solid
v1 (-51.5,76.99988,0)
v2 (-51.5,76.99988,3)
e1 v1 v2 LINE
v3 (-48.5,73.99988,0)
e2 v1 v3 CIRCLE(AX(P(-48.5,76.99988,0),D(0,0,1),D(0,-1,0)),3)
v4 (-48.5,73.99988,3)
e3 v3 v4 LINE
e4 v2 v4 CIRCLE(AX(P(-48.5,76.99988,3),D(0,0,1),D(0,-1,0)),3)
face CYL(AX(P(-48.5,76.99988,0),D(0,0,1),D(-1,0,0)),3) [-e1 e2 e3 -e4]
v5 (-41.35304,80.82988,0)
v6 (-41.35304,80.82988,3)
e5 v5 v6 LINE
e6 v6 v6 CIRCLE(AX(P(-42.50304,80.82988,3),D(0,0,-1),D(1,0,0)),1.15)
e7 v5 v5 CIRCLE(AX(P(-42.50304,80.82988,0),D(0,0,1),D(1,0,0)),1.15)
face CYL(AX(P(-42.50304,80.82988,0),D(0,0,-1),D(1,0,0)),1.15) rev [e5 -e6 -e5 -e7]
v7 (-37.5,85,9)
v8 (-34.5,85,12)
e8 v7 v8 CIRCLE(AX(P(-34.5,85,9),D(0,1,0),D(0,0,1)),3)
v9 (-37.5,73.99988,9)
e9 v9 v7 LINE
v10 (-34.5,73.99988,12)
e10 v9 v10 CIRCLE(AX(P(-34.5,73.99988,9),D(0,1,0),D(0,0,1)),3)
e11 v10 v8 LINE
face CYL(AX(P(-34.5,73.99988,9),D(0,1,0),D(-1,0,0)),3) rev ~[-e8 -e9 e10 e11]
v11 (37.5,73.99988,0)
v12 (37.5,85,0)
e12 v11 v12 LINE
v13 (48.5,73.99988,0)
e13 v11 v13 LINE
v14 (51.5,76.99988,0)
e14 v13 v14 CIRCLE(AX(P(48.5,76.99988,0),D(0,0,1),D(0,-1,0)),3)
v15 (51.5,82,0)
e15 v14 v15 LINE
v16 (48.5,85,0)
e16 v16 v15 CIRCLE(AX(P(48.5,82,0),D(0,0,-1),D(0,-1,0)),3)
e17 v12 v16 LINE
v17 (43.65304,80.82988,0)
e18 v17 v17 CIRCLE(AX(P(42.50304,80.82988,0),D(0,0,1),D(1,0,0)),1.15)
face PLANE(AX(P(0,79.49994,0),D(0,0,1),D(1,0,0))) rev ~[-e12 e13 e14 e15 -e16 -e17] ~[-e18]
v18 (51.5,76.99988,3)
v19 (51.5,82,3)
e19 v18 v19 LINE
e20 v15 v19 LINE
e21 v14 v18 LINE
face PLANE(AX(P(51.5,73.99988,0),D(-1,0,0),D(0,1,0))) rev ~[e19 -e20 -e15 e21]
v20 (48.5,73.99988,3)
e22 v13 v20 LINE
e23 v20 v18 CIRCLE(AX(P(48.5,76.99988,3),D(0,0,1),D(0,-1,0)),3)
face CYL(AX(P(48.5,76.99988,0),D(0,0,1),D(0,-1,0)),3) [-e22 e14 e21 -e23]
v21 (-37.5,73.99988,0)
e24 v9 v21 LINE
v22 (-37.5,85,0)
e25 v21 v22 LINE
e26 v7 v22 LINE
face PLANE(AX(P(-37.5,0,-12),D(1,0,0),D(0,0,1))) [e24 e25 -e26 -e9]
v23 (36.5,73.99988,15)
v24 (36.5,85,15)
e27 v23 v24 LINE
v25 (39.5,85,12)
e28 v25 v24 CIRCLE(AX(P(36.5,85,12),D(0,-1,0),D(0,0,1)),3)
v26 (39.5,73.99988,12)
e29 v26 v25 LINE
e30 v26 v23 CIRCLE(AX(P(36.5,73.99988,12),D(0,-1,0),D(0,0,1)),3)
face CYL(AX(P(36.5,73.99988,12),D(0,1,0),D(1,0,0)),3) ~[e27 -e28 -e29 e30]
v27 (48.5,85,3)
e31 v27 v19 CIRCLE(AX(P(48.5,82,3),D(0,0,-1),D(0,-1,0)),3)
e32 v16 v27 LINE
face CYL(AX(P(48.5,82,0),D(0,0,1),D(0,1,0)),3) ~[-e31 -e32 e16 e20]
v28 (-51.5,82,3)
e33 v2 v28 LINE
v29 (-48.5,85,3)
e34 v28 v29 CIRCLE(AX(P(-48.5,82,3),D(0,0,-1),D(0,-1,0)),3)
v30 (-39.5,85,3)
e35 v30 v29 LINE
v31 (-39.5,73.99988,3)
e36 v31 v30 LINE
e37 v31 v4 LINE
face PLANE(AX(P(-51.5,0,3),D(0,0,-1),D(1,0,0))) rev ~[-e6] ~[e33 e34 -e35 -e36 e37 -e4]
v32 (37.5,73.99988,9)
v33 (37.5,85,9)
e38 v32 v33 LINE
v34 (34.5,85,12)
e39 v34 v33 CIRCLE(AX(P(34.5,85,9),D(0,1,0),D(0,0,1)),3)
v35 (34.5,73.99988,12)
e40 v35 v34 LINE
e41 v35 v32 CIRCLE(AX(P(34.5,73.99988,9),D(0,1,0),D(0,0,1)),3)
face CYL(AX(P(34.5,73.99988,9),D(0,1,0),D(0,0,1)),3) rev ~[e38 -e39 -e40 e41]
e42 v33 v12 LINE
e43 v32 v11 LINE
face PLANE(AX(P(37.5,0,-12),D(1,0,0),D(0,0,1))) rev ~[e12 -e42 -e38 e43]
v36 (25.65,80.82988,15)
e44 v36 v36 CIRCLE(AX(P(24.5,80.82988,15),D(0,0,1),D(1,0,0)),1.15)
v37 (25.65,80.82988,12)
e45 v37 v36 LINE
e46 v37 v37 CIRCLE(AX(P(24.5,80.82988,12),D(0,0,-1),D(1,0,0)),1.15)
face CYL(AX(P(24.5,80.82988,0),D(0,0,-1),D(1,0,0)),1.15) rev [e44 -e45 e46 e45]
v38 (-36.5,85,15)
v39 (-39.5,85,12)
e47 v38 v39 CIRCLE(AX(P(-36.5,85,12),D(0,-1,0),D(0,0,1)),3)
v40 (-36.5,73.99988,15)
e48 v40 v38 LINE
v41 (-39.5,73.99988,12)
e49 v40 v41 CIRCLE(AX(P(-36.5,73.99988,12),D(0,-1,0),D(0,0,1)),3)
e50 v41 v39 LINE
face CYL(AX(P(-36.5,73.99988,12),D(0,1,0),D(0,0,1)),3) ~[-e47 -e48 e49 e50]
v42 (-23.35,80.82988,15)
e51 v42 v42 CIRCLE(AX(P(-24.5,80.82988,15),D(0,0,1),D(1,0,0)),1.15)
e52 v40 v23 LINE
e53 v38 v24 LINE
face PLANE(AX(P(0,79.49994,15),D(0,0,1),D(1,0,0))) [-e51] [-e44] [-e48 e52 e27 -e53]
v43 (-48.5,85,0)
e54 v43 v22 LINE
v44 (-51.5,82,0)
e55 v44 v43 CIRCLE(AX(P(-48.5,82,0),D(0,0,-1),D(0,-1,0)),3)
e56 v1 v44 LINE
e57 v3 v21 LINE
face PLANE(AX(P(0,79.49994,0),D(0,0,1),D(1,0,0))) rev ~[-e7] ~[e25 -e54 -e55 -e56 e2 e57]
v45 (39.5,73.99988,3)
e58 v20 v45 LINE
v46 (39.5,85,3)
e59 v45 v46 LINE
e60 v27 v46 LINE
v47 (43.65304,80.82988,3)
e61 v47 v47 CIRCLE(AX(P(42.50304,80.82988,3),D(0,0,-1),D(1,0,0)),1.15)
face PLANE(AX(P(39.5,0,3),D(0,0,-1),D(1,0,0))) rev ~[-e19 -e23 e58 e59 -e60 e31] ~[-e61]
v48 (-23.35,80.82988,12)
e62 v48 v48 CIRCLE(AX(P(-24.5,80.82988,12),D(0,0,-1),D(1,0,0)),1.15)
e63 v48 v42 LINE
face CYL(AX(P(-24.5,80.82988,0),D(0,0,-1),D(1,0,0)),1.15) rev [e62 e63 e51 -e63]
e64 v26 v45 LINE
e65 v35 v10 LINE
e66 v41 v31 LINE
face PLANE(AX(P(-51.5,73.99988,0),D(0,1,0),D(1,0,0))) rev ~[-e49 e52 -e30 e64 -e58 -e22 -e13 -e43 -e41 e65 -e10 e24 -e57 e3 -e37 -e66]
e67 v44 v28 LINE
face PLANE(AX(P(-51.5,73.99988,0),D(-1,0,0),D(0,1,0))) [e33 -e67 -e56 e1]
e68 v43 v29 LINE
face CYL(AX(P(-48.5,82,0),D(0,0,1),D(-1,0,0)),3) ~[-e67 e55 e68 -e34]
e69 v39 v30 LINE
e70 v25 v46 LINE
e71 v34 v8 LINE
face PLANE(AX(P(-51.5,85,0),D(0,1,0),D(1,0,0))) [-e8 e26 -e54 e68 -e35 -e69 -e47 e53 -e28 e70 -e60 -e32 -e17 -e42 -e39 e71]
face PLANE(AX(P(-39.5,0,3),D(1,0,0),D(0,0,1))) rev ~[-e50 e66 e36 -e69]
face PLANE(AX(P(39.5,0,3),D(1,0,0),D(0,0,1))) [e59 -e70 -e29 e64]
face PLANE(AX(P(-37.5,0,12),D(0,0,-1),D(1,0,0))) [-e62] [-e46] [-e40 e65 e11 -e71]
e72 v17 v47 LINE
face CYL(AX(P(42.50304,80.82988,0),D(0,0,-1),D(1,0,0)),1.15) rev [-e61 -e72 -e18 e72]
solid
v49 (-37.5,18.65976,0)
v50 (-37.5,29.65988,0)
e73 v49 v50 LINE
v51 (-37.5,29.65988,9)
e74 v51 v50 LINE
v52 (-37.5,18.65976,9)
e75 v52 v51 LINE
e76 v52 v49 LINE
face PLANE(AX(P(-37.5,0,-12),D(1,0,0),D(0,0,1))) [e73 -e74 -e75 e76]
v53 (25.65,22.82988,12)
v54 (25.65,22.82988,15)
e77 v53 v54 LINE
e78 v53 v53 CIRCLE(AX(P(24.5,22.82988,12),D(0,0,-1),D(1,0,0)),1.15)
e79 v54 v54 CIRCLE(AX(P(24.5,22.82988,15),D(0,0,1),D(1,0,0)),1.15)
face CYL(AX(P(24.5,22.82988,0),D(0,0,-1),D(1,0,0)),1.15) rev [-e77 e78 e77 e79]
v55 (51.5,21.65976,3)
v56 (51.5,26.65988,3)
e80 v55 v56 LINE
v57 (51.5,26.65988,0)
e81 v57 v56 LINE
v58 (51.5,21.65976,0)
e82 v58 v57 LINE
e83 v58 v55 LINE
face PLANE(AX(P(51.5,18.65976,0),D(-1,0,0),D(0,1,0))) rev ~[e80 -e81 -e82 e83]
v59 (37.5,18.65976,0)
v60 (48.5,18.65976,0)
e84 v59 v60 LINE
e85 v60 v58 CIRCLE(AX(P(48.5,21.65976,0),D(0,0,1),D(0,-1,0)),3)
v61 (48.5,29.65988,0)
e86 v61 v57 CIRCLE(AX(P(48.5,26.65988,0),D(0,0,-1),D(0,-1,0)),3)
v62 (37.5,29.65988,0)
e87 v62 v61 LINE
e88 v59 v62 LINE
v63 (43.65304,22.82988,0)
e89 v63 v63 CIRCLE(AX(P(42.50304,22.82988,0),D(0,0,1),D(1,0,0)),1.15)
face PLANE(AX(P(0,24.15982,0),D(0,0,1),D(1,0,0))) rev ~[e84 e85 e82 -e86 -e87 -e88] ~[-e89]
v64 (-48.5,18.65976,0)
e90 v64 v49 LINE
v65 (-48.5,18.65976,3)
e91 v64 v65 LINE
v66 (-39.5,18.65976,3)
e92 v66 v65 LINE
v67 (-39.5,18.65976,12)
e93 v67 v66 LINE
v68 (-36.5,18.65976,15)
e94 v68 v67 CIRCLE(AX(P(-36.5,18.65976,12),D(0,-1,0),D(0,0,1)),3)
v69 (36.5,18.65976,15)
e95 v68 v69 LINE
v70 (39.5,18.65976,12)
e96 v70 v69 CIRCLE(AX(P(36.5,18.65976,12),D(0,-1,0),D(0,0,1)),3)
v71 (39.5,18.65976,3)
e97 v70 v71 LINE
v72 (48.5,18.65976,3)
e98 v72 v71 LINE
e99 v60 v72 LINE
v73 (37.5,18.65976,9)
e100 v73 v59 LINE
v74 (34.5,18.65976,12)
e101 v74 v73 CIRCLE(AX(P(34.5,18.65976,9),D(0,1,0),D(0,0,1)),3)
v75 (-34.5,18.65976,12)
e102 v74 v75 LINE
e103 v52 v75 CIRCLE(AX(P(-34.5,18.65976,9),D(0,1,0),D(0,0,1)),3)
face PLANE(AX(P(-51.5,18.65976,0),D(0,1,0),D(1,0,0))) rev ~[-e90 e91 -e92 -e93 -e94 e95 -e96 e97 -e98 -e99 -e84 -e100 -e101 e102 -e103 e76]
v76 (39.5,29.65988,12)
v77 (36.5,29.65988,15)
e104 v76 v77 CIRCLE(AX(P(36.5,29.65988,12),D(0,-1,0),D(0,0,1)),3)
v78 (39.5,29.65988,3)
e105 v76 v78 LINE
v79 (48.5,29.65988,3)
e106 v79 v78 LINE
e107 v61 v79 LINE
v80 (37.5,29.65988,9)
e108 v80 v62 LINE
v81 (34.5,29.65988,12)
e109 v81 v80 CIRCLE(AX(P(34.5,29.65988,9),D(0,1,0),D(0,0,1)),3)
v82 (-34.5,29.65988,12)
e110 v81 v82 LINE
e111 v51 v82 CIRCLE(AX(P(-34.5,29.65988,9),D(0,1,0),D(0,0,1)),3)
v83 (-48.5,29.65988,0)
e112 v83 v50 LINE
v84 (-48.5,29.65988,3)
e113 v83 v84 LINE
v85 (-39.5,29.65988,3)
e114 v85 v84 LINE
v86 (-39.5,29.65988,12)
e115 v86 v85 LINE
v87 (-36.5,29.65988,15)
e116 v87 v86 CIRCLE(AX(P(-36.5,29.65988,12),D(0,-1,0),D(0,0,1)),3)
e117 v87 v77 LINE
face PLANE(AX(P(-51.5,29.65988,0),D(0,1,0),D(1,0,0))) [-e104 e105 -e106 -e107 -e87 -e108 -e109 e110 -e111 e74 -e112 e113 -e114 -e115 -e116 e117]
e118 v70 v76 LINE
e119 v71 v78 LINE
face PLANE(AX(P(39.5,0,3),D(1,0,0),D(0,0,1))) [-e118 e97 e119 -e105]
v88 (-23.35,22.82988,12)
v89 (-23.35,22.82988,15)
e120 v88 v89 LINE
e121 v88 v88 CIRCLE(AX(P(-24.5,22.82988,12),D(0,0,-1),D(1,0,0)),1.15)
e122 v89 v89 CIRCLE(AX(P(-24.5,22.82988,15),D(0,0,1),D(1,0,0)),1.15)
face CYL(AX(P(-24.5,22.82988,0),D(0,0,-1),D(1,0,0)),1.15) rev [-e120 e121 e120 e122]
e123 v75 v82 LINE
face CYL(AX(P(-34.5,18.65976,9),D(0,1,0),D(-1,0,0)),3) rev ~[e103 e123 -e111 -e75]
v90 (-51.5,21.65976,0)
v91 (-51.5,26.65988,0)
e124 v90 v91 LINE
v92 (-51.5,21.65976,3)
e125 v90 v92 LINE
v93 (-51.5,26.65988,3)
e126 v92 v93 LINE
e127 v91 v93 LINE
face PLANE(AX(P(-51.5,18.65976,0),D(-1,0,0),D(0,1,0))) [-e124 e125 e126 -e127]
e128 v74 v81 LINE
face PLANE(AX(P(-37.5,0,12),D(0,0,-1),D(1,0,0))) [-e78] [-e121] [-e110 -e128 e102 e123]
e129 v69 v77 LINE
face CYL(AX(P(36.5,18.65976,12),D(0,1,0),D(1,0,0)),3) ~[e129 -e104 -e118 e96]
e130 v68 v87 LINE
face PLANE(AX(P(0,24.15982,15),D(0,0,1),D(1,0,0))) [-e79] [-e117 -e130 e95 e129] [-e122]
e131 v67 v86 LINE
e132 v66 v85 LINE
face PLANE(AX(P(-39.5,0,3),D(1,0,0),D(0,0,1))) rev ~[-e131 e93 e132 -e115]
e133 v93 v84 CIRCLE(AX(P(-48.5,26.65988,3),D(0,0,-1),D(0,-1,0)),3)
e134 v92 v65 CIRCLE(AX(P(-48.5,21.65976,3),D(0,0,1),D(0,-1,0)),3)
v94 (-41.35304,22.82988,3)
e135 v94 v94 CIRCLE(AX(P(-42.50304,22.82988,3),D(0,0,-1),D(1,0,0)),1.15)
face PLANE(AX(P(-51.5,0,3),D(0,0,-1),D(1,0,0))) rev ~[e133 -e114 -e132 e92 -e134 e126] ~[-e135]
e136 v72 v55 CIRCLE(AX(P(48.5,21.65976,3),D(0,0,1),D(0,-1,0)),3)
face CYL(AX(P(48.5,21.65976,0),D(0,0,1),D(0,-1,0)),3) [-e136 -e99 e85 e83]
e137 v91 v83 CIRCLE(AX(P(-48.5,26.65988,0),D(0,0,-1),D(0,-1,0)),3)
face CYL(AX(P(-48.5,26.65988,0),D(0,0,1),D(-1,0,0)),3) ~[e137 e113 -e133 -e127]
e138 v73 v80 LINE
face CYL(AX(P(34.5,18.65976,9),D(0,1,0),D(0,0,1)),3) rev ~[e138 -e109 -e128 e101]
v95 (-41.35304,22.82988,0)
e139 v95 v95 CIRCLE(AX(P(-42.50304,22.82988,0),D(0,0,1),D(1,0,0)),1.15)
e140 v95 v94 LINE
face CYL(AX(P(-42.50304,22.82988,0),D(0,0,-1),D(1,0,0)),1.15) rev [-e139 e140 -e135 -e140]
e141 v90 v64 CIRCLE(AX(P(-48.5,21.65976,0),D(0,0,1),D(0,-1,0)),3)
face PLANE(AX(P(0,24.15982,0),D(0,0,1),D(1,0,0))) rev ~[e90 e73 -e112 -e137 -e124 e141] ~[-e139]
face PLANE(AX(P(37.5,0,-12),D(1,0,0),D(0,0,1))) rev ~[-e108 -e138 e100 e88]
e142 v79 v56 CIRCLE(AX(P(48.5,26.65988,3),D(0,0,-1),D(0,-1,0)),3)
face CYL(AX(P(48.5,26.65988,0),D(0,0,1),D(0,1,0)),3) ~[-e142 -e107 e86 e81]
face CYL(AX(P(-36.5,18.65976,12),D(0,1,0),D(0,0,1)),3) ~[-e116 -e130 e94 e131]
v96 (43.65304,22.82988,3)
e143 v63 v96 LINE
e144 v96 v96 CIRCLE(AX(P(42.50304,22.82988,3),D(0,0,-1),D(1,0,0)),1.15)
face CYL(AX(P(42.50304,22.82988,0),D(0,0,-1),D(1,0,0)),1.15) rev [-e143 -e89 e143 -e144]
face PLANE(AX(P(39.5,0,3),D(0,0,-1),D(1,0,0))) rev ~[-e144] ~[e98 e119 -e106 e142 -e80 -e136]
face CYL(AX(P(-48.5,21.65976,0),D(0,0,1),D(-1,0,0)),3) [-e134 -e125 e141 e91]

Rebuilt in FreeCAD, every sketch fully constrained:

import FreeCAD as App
import Part
import Sketcher
from FreeCAD import Vector


def edges_at(feature, points):
    """Names of the edges that pass closest to the given points."""
    edges = feature.Shape.Edges
    near = lambda p: min(range(len(edges)), key=lambda i: edges[i].distToShape(Part.Vertex(*p))[0])
    return sorted({f"Edge{near(p) + 1}" for p in points})

doc = App.newDocument("Part")
params = doc.addObject("Spreadsheet::Sheet", "Params")
for row, (alias, value) in enumerate([
    ("sketch1_diameter", "2.3 mm"),
    ("sketch1_width", "103 mm"),
    ("pad1_length", "15 mm"),
    ("sketch2_diameter", "2.3 mm"),
    ("sketch2_width", "103 mm"),
    ("pad2_length", "15 mm"),
    ("sketch3_width", "75 mm"),
    ("sketch3_width2", "12 mm"),
    ("sketch3_height", "24 mm"),
    ("pad3_length", "85.001 mm"),
    ("fillet_radius", "3 mm"),
    ("fillet2_radius", "3 mm"),
], start=1):
    params.set(f"A{row}", alias)
    params.set(f"B{row}", "=" + value)
    params.setAlias(f"B{row}", alias)

body = doc.addObject("PartDesign::Body", "Body")

# Sketch on XY plane
sketch1 = body.newObject("Sketcher::SketchObject", "Sketch")
sketch1.AttachmentSupport = (doc.getObject("XY_Plane"), [""])
sketch1.MapMode = "FlatFace"
sketch1.addGeometry(Part.LineSegment(Vector(-51.5, 85, 0), Vector(-51.5, 73.99988, 0)), False)
sketch1.addGeometry(Part.LineSegment(Vector(-51.5, 73.99988, 0), Vector(51.5, 73.99988, 0)), False)
sketch1.addGeometry(Part.LineSegment(Vector(51.5, 73.99988, 0), Vector(51.5, 85, 0)), False)
sketch1.addGeometry(Part.LineSegment(Vector(51.5, 85, 0), Vector(-51.5, 85, 0)), False)
sketch1.addGeometry(Part.Circle(Vector(-42.50304, 80.82988, 0), Vector(0, 0, 1), 1.15), False)
sketch1.addGeometry(Part.Circle(Vector(-24.5, 80.82988, 0), Vector(0, 0, 1), 1.15), False)
sketch1.addGeometry(Part.Circle(Vector(24.5, 80.82988, 0), Vector(0, 0, 1), 1.15), False)
sketch1.addGeometry(Part.Circle(Vector(42.50304, 80.82988, 0), Vector(0, 0, 1), 1.15), False)
sketch1.addConstraint(Sketcher.Constraint("Coincident", 0, 2, 1, 1))
sketch1.addConstraint(Sketcher.Constraint("Coincident", 1, 2, 2, 1))
sketch1.addConstraint(Sketcher.Constraint("Coincident", 2, 2, 3, 1))
sketch1.addConstraint(Sketcher.Constraint("Coincident", 3, 2, 0, 1))
sketch1.addConstraint(Sketcher.Constraint("Vertical", 0))
sketch1.addConstraint(Sketcher.Constraint("Horizontal", 1))
sketch1.addConstraint(Sketcher.Constraint("Vertical", 2))
sketch1.addConstraint(Sketcher.Constraint("Horizontal", 3))
sketch1.addConstraint(Sketcher.Constraint("Equal", 4, 5))
sketch1.addConstraint(Sketcher.Constraint("Equal", 5, 6))
sketch1.addConstraint(Sketcher.Constraint("Equal", 6, 7))
sketch1.addConstraint(Sketcher.Constraint("Symmetric", 5, 3, 6, 3, -2))
sketch1.addConstraint(Sketcher.Constraint("Symmetric", 4, 3, 7, 3, -2))
sketch1.addConstraint(Sketcher.Constraint("Horizontal", 4, 3, 5, 3))
sketch1.addConstraint(Sketcher.Constraint("Diameter", 4, 2.3))
sketch1.addConstraint(Sketcher.Constraint("DistanceX", 1, 1, 1, 2, 103.0))
sketch1.addConstraint(Sketcher.Constraint("DistanceY", -1, 1, 2, 2, 85.0))
sketch1.addConstraint(Sketcher.Constraint("DistanceX", 5, 3, 6, 3, 49.0))
sketch1.addConstraint(Sketcher.Constraint("DistanceX", 0, 2, 5, 3, 27.0))
sketch1.addConstraint(Sketcher.Constraint("DistanceY", 0, 2, 4, 3, 6.83))
sketch1.addConstraint(Sketcher.Constraint("DistanceY", 0, 2, 0, 1, 11.00012))
sketch1.addConstraint(Sketcher.Constraint("DistanceX", 4, 3, -1, 1, 42.50304))
sketch1.setExpression("Constraints[14]", "Params.sketch1_diameter")
sketch1.setExpression("Constraints[15]", "Params.sketch1_width")
pad1 = body.newObject("PartDesign::Pad", "Pad")
pad1.Profile = sketch1
pad1.setExpression("Length", "Params.pad1_length")
body2 = doc.addObject("PartDesign::Body", "Body001")

# Sketch on XY plane
sketch2 = body2.newObject("Sketcher::SketchObject", "Sketch001")
sketch2.AttachmentSupport = (doc.getObject("XY_Plane001"), [""])
sketch2.MapMode = "FlatFace"
sketch2.addGeometry(Part.LineSegment(Vector(-51.5, 29.65988, 0), Vector(-51.5, 18.65976, 0)), False)
sketch2.addGeometry(Part.LineSegment(Vector(-51.5, 18.65976, 0), Vector(51.5, 18.65976, 0)), False)
sketch2.addGeometry(Part.LineSegment(Vector(51.5, 18.65976, 0), Vector(51.5, 29.65988, 0)), False)
sketch2.addGeometry(Part.LineSegment(Vector(51.5, 29.65988, 0), Vector(-51.5, 29.65988, 0)), False)
sketch2.addGeometry(Part.Circle(Vector(-42.50304, 22.82988, 0), Vector(0, 0, 1), 1.15), False)
sketch2.addGeometry(Part.Circle(Vector(-24.5, 22.82988, 0), Vector(0, 0, 1), 1.15), False)
sketch2.addGeometry(Part.Circle(Vector(24.5, 22.82988, 0), Vector(0, 0, 1), 1.15), False)
sketch2.addGeometry(Part.Circle(Vector(42.50304, 22.82988, 0), Vector(0, 0, 1), 1.15), False)
sketch2.addConstraint(Sketcher.Constraint("Coincident", 0, 2, 1, 1))
sketch2.addConstraint(Sketcher.Constraint("Coincident", 1, 2, 2, 1))
sketch2.addConstraint(Sketcher.Constraint("Coincident", 2, 2, 3, 1))
sketch2.addConstraint(Sketcher.Constraint("Coincident", 3, 2, 0, 1))
sketch2.addConstraint(Sketcher.Constraint("Vertical", 0))
sketch2.addConstraint(Sketcher.Constraint("Horizontal", 1))
sketch2.addConstraint(Sketcher.Constraint("Vertical", 2))
sketch2.addConstraint(Sketcher.Constraint("Horizontal", 3))
sketch2.addConstraint(Sketcher.Constraint("Equal", 4, 5))
sketch2.addConstraint(Sketcher.Constraint("Equal", 5, 6))
sketch2.addConstraint(Sketcher.Constraint("Equal", 6, 7))
sketch2.addConstraint(Sketcher.Constraint("Symmetric", 5, 3, 6, 3, -2))
sketch2.addConstraint(Sketcher.Constraint("Symmetric", 4, 3, 7, 3, -2))
sketch2.addConstraint(Sketcher.Constraint("Horizontal", 4, 3, 5, 3))
sketch2.addConstraint(Sketcher.Constraint("Diameter", 4, 2.3))
sketch2.addConstraint(Sketcher.Constraint("DistanceX", 1, 1, 1, 2, 103.0))
sketch2.addConstraint(Sketcher.Constraint("DistanceX", 5, 3, 6, 3, 49.0))
sketch2.addConstraint(Sketcher.Constraint("DistanceX", 0, 2, 5, 3, 27.0))
sketch2.addConstraint(Sketcher.Constraint("DistanceY", 7, 3, 2, 2, 6.83))
sketch2.addConstraint(Sketcher.Constraint("DistanceY", 0, 2, 0, 1, 11.00012))
sketch2.addConstraint(Sketcher.Constraint("DistanceX", 4, 3, -1, 1, 42.50304))
sketch2.addConstraint(Sketcher.Constraint("DistanceY", -1, 1, 4, 3, 22.82988))
sketch2.setExpression("Constraints[14]", "Params.sketch2_diameter")
sketch2.setExpression("Constraints[15]", "Params.sketch2_width")
pad2 = body2.newObject("PartDesign::Pad", "Pad001")
pad2.Profile = sketch2
pad2.setExpression("Length", "Params.pad2_length")
body3 = doc.addObject("PartDesign::Body", "Body002")
body3.AllowCompound = True

# Sketch on XZ plane
sketch3 = body3.newObject("Sketcher::SketchObject", "Sketch002")
sketch3.AttachmentSupport = (doc.getObject("XZ_Plane002"), [""])
sketch3.MapMode = "FlatFace"
sketch3.addGeometry(Part.LineSegment(Vector(-37.5, 12, 0), Vector(-37.5, -12, 0)), False)
sketch3.addGeometry(Part.LineSegment(Vector(-37.5, -12, 0), Vector(37.5, -12, 0)), False)
sketch3.addGeometry(Part.LineSegment(Vector(37.5, -12, 0), Vector(37.5, 12, 0)), False)
sketch3.addGeometry(Part.LineSegment(Vector(37.5, 12, 0), Vector(-37.5, 12, 0)), False)
sketch3.addGeometry(Part.LineSegment(Vector(-51.5, 15, 0), Vector(-51.5, 3, 0)), False)
sketch3.addGeometry(Part.LineSegment(Vector(-51.5, 3, 0), Vector(-39.5, 3, 0)), False)
sketch3.addGeometry(Part.LineSegment(Vector(-39.5, 3, 0), Vector(-39.5, 15, 0)), False)
sketch3.addGeometry(Part.LineSegment(Vector(-39.5, 15, 0), Vector(-51.5, 15, 0)), False)
sketch3.addGeometry(Part.LineSegment(Vector(39.5, 15, 0), Vector(39.5, 3, 0)), False)
sketch3.addGeometry(Part.LineSegment(Vector(39.5, 3, 0), Vector(51.5, 3, 0)), False)
sketch3.addGeometry(Part.LineSegment(Vector(51.5, 3, 0), Vector(51.5, 15, 0)), False)
sketch3.addGeometry(Part.LineSegment(Vector(51.5, 15, 0), Vector(39.5, 15, 0)), False)
sketch3.addConstraint(Sketcher.Constraint("Coincident", 0, 2, 1, 1))
sketch3.addConstraint(Sketcher.Constraint("Coincident", 1, 2, 2, 1))
sketch3.addConstraint(Sketcher.Constraint("Coincident", 2, 2, 3, 1))
sketch3.addConstraint(Sketcher.Constraint("Coincident", 3, 2, 0, 1))
sketch3.addConstraint(Sketcher.Constraint("Coincident", 4, 2, 5, 1))
sketch3.addConstraint(Sketcher.Constraint("Coincident", 5, 2, 6, 1))
sketch3.addConstraint(Sketcher.Constraint("Coincident", 6, 2, 7, 1))
sketch3.addConstraint(Sketcher.Constraint("Coincident", 7, 2, 4, 1))
sketch3.addConstraint(Sketcher.Constraint("Coincident", 8, 2, 9, 1))
sketch3.addConstraint(Sketcher.Constraint("Coincident", 9, 2, 10, 1))
sketch3.addConstraint(Sketcher.Constraint("Coincident", 10, 2, 11, 1))
sketch3.addConstraint(Sketcher.Constraint("Coincident", 11, 2, 8, 1))
sketch3.addConstraint(Sketcher.Constraint("Vertical", 0))
sketch3.addConstraint(Sketcher.Constraint("Horizontal", 1))
sketch3.addConstraint(Sketcher.Constraint("Vertical", 2))
sketch3.addConstraint(Sketcher.Constraint("Horizontal", 3))
sketch3.addConstraint(Sketcher.Constraint("Vertical", 4))
sketch3.addConstraint(Sketcher.Constraint("Horizontal", 5))
sketch3.addConstraint(Sketcher.Constraint("Vertical", 6))
sketch3.addConstraint(Sketcher.Constraint("Horizontal", 7))
sketch3.addConstraint(Sketcher.Constraint("Vertical", 8))
sketch3.addConstraint(Sketcher.Constraint("Horizontal", 9))
sketch3.addConstraint(Sketcher.Constraint("Vertical", 10))
sketch3.addConstraint(Sketcher.Constraint("Horizontal", 11))
sketch3.addConstraint(Sketcher.Constraint("Symmetric", 0, 2, 2, 2, -1, 1))
sketch3.addConstraint(Sketcher.Constraint("Symmetric", 5, 2, 8, 2, -2))
sketch3.addConstraint(Sketcher.Constraint("Symmetric", 7, 2, 10, 2, -2))
sketch3.addConstraint(Sketcher.Constraint("Equal", 11, 4))
sketch3.addConstraint(Sketcher.Constraint("DistanceX", 1, 1, 1, 2, 75.0))
sketch3.addConstraint(Sketcher.Constraint("DistanceX", 5, 1, 5, 2, 12.0))
sketch3.addConstraint(Sketcher.Constraint("DistanceY", 0, 2, 0, 1, 24.0))
sketch3.addConstraint(Sketcher.Constraint("DistanceY", -1, 1, 4, 2, 3.0))
sketch3.addConstraint(Sketcher.Constraint("DistanceX", 4, 2, 3, 2, 14.0))
sketch3.setExpression("Constraints[28]", "Params.sketch3_width")
sketch3.setExpression("Constraints[29]", "Params.sketch3_width2")
sketch3.setExpression("Constraints[30]", "Params.sketch3_height")
pad3 = body3.newObject("PartDesign::Pad", "Pad002")
pad3.Profile = sketch3
pad3.setExpression("Length", "Params.pad3_length")
pad3.Reversed = True
doc.recompute()

body4 = doc.addObject("PartDesign::Body", "Body003")
body4.BaseFeature = body3
boolean = body.newObject("PartDesign::Boolean", "Boolean")
boolean.Type = "Cut"
boolean.addObjects([body4])
doc.recompute()

fillet = body.newObject("PartDesign::Fillet", "Fillet")
fillet.Base = (boolean, edges_at(boolean, [
    (-37.5, 79.5, 12),
    (-51.5, 74, 1.5),
    (-51.5, 85, 1.5),
    (-39.5, 79.5, 15),
    (39.5, 79.5, 15),
    (51.5, 74, 1.5),
    (51.5, 85, 1.5),
    (37.5, 79.5, 12),
]))
fillet.setExpression("Radius", "Params.fillet_radius")
doc.recompute()

boolean2 = body2.newObject("PartDesign::Boolean", "Boolean001")
boolean2.Type = "Cut"
boolean2.addObjects([body3])
doc.recompute()

fillet2 = body2.newObject("PartDesign::Fillet", "Fillet001")
fillet2.Base = (boolean2, edges_at(boolean2, [
    (-39.5, 24.16, 15),
    (-37.5, 24.16, 12),
    (-51.5, 18.66, 1.5),
    (-51.5, 29.66, 1.5),
    (39.5, 24.16, 15),
    (51.5, 18.66, 1.5),
    (51.5, 29.66, 1.5),
    (37.5, 24.16, 12),
]))
fillet2.setExpression("Radius", "Params.fillet2_radius")

doc.recompute()
